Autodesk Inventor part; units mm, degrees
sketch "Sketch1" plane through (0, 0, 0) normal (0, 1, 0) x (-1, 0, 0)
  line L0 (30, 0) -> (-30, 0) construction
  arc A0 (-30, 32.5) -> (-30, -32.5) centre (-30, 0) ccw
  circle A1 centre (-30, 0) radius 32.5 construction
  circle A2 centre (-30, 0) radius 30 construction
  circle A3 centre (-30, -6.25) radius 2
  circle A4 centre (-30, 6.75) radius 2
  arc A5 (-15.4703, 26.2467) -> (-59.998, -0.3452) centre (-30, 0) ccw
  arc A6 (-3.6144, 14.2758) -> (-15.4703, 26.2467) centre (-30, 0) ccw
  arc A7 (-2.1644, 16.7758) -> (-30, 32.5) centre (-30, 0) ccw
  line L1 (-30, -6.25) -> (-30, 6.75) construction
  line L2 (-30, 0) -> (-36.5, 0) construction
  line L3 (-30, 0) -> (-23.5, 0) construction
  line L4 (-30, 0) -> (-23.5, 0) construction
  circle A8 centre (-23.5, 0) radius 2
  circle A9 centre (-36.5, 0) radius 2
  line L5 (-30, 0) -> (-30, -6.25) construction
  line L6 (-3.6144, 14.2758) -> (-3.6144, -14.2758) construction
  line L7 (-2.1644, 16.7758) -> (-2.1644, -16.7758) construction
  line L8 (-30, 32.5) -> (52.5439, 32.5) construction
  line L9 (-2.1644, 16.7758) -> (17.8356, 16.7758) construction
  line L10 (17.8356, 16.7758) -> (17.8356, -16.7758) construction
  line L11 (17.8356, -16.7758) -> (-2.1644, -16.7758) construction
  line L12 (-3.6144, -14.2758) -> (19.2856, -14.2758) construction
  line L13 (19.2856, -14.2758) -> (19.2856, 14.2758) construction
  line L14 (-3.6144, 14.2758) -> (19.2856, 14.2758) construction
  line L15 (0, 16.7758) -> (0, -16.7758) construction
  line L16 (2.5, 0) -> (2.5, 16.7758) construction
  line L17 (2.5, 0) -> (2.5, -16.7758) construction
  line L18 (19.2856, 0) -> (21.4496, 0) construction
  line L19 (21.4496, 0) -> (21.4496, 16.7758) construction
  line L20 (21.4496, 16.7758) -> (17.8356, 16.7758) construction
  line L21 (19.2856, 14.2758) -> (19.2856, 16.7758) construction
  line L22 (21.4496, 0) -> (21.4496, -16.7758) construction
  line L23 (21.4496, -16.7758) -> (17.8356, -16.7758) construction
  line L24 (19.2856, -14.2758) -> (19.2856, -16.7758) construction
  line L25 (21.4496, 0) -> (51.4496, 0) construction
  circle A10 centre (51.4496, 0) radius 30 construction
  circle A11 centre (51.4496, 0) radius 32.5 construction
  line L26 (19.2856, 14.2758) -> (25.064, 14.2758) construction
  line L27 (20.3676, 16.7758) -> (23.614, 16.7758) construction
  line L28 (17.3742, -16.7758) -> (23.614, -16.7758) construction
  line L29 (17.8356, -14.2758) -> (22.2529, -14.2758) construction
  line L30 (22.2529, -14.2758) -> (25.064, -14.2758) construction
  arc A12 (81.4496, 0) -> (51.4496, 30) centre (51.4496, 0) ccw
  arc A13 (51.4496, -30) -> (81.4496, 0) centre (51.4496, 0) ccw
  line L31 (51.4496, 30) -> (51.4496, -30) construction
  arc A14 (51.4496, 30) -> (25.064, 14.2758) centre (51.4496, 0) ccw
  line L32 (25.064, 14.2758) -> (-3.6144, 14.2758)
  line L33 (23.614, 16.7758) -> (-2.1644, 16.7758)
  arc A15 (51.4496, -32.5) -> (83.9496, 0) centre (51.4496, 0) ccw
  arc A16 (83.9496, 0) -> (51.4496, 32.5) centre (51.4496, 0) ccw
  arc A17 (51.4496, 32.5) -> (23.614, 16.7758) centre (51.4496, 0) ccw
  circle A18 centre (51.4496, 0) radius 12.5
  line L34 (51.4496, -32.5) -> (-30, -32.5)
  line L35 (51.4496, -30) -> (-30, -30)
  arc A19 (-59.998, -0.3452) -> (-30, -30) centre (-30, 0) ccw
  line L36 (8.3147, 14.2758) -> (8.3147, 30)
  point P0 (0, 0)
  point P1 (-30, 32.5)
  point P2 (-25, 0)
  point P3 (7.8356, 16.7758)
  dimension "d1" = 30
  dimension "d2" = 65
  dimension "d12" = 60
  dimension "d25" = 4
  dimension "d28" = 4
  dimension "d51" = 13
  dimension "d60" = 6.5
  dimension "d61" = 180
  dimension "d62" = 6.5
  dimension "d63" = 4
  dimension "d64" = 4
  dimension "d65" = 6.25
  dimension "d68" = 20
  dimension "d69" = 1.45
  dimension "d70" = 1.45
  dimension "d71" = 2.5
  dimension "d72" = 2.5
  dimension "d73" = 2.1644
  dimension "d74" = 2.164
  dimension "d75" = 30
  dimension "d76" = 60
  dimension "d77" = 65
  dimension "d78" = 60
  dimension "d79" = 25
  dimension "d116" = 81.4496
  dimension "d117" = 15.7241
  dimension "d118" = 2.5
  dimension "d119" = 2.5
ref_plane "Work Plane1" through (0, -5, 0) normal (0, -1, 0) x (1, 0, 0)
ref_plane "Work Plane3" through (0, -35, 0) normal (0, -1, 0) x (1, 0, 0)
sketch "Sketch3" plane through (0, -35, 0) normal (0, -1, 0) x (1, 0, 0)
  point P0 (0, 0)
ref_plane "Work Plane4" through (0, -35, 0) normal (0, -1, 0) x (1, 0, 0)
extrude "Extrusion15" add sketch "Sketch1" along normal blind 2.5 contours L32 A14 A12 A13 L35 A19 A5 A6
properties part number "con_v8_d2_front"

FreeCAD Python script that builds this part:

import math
import FreeCAD as App
import Part
import Sketcher
from FreeCAD import Vector
Q = App.Units.Quantity

doc = App.newDocument("Part")
body = doc.addObject("PartDesign::Body", "Body")

# Sketch on XZ plane
sketch1 = doc.addObject("Sketcher::SketchObject", "Sketch")
body.addObject(sketch1)
sketch1.AttachmentSupport = (doc.XZ_Plane, [""])
sketch1.MapMode = "FlatFace"
sketch1.addGeometry([
    Part.LineSegment(Vector(-25.1, 14.3, 0), Vector(3.6, 14.3, 0)),  # 0
    Part.ArcOfCircle(Part.Circle(Vector(30, 0, 0), Vector(0, 0, 1), 30), math.radians(119), math.radians(152)),  # 1
    Part.ArcOfCircle(Part.Circle(Vector(30, 0, 0), Vector(0, 0, 1), 30), math.radians(-1), math.radians(119)),  # 2
    Part.ArcOfCircle(Part.Circle(Vector(30, 0, 0), Vector(0, 0, 1), 30), math.radians(-90), math.radians(-1)),  # 3
    Part.LineSegment(Vector(30, -30, 0), Vector(-51.4, -30, 0)),  # 4
    Part.ArcOfCircle(Part.Circle(Vector(-51.4, 0, 0), Vector(0, 0, 1), 30), math.radians(90), math.radians(270)),  # 5
    Part.ArcOfCircle(Part.Circle(Vector(-51.4, 0, 0), Vector(0, 0, 1), 30), math.radians(28), math.radians(90)),  # 6
    Part.Circle(Vector(30, -6.2, 0), Vector(0, 0, 1), 2),  # 7
    Part.Circle(Vector(36.5, 0, 0), Vector(0, 0, 1), 2),  # 8
    Part.Circle(Vector(23.5, 0, 0), Vector(0, 0, 1), 2),  # 9
    Part.Circle(Vector(-51.4, 0, 0), Vector(0, 0, 1), 12.5),  # 10
    Part.Circle(Vector(30, 6.8, 0), Vector(0, 0, 1), 2),  # 11
], False)
sketch1.addConstraint([
    Sketcher.Constraint("Coincident", 0, 2, 1, 2),
    Sketcher.Constraint("Tangent", 1, 1, 2, 2),
    Sketcher.Constraint("Tangent", 2, 1, 3, 2),
    Sketcher.Constraint("Tangent", 3, 1, 4, 1),
    Sketcher.Constraint("Tangent", 4, 2, 5, 2),
    Sketcher.Constraint("Tangent", 5, 1, 6, 2),
    Sketcher.Constraint("Coincident", 6, 1, 0, 1),
    Sketcher.Constraint("Horizontal", 0),
    Sketcher.Constraint("Horizontal", 4),
    Sketcher.Constraint("Coincident", 3, 3, 1, 3),
    Sketcher.Constraint("Coincident", 10, 3, 5, 3),
    Sketcher.Constraint("Equal", 3, 5),
    Sketcher.Constraint("Equal", 5, 6),
    Sketcher.Constraint("Equal", 7, 8),
    Sketcher.Constraint("Equal", 8, 9),
    Sketcher.Constraint("Equal", 9, 11),
    Sketcher.Constraint("Symmetric", 4, 2, 5, 1, -1),
    Sketcher.Constraint("PointOnObject", 8, 3, -1),
    Sketcher.Constraint("PointOnObject", 9, 3, -1),
    Sketcher.Constraint("Vertical", 3, 3, 7, 3),
    Sketcher.Constraint("Vertical", 7, 3, 11, 3),
    Sketcher.Constraint("Diameter", 7, Q("4 mm")),
    Sketcher.Constraint("Diameter", 10, Q("25 mm")),
    Sketcher.Constraint("Radius", 1, Q("30 mm")),
    Sketcher.Constraint("DistanceX", -1, 1, 1, 3, Q("30 mm")),
    Sketcher.Constraint("DistanceX", 9, 3, 8, 3, Q("13 mm")),
    Sketcher.Constraint("DistanceX", 1, 3, 8, 3, Q("6.5 mm")),
    Sketcher.Constraint("DistanceY", 7, 3, -1, 1, Q("6.25 mm")),
    Sketcher.Constraint("DistanceX", 4, 2, 4, 1, Q("81.4496 mm")),
    Sketcher.Constraint("DistanceY", 0, 2, 5, 1, Q("15.7242 mm")),
    Sketcher.Constraint("DistanceY", -1, 1, 11, 3, Q("6.75 mm")),
    Sketcher.Constraint("DistanceX", -1, 1, 2, 1, Q("59.998 mm")),
    Sketcher.Constraint("DistanceX", 0, 2, 1, 1, Q("11.856 mm")),
])
pad1 = doc.addObject("PartDesign::Pad", "Pad")
body.addObject(pad1)
pad1.Profile = sketch1
pad1.Length = 2.5
pad1.Reversed = True

doc.recompute()
